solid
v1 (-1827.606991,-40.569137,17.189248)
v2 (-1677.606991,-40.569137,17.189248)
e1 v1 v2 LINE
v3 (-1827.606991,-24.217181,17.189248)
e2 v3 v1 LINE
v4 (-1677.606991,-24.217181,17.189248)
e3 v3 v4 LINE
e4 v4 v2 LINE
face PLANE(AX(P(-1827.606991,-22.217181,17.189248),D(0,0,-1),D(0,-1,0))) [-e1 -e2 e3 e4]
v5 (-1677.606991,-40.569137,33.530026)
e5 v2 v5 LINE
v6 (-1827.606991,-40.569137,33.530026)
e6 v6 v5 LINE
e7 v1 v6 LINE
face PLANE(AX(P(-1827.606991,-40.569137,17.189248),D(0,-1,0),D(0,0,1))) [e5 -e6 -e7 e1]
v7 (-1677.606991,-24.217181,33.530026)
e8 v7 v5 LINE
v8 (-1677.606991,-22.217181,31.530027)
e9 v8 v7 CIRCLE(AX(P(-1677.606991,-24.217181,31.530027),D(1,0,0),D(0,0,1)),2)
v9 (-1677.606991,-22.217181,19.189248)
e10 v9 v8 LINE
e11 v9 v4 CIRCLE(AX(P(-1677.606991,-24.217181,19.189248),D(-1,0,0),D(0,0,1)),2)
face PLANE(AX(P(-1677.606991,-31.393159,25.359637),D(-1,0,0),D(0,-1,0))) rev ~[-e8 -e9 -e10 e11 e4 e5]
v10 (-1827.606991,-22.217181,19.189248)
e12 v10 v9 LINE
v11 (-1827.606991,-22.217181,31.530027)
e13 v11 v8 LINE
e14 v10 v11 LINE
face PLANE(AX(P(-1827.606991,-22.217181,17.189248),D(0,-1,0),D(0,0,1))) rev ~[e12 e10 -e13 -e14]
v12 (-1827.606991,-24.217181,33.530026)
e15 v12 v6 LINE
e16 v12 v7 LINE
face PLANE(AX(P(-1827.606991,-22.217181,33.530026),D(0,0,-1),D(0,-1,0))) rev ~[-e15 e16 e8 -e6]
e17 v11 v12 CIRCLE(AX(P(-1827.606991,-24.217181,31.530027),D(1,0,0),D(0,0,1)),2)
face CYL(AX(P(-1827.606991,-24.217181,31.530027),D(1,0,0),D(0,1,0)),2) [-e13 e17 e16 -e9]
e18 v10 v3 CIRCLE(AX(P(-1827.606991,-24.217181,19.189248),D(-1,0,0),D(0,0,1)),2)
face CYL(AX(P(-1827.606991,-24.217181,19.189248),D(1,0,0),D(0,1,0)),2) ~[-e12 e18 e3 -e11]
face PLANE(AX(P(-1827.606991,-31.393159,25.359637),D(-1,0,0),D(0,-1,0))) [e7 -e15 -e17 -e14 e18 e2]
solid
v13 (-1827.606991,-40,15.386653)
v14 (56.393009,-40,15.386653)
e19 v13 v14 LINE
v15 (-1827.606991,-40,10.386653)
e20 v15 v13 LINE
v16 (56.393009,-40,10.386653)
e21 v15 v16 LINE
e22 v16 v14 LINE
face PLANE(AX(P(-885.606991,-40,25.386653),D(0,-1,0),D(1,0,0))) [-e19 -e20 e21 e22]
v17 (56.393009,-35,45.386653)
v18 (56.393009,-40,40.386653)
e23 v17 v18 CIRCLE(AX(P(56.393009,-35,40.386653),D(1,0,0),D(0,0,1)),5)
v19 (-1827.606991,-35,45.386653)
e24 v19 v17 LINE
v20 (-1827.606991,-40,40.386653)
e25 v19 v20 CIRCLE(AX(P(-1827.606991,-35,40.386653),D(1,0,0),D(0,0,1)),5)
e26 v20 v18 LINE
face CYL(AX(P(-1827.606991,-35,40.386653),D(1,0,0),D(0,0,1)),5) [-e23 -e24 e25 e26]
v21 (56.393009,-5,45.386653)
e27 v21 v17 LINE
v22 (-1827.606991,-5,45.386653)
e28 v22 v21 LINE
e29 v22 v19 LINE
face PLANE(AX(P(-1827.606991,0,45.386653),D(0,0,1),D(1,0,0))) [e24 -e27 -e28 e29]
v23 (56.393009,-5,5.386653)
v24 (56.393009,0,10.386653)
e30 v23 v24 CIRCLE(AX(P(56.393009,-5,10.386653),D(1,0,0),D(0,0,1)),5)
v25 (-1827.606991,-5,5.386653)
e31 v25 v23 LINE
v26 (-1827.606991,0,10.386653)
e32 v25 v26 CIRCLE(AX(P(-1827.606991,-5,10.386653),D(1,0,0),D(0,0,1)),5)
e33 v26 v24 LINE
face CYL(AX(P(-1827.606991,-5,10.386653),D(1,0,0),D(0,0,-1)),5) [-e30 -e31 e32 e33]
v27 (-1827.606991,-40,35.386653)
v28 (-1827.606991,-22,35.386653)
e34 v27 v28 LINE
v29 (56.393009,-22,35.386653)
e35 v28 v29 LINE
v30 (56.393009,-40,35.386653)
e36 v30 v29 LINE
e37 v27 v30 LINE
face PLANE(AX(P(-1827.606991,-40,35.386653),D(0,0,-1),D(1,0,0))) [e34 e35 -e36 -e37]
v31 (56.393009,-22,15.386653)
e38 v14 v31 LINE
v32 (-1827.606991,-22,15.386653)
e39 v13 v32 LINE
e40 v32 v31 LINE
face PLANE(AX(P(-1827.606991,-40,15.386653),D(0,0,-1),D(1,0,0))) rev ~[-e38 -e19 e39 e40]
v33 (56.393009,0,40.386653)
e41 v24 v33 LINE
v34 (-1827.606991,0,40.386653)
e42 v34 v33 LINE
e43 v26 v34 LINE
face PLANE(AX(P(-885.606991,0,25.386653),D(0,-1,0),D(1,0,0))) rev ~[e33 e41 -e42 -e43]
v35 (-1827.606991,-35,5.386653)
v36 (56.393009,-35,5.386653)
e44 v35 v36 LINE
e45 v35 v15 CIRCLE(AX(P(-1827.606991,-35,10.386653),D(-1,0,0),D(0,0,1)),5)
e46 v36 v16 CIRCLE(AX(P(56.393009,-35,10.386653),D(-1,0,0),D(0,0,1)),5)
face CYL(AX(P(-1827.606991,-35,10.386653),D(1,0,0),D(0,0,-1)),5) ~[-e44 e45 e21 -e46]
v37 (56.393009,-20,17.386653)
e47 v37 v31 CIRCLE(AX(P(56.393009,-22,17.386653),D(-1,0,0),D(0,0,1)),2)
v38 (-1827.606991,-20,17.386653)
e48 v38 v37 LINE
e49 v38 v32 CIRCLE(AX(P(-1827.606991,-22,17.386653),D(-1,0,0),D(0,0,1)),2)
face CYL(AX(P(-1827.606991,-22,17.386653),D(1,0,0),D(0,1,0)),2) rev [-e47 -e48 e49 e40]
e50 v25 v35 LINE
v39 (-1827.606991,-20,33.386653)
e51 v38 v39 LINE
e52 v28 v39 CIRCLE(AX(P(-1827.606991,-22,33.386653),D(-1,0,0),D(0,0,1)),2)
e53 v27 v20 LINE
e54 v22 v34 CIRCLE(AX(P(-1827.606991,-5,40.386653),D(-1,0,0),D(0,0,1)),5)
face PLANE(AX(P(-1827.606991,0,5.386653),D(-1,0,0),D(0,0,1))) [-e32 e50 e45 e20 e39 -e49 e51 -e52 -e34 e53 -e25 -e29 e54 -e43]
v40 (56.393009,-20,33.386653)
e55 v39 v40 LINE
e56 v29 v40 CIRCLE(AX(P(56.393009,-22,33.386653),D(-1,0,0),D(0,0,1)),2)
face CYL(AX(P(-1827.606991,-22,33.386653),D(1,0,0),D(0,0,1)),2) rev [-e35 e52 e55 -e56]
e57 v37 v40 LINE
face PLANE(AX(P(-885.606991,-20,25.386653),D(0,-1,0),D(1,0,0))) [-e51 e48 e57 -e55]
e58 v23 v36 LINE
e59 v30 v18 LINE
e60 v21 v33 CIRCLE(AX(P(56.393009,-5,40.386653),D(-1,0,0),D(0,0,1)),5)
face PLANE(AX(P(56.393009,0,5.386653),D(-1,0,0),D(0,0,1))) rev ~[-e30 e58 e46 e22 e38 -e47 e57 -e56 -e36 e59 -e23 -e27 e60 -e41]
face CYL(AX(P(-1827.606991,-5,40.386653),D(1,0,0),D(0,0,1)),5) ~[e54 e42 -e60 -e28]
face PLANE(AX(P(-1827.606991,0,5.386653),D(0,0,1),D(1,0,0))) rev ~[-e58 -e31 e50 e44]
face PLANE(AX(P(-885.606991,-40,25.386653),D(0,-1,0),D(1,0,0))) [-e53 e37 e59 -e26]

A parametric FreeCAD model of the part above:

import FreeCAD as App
import Part
import Sketcher

V = App.Vector


def edges_at(feature, points):
    """Names of the edges that pass closest to the given points."""
    edges = feature.Shape.Edges
    near = lambda p: min(range(len(edges)), key=lambda i: edges[i].distToShape(Part.Vertex(*p))[0])
    return sorted({f"Edge{near(p) + 1}" for p in points})


def add_polygon(sketch, points):
    """Adds a closed chain of lines whose ends are joined by coincident constraints."""
    first, n = sketch.GeometryCount, len(points)
    for a, b in zip(points, points[1:] + points[:1]):
        sketch.addGeometry(Part.LineSegment(App.Vector(*a, 0), App.Vector(*b, 0)), False)
    for i in range(n):
        sketch.addConstraint(Sketcher.Constraint("Coincident", first + i, 2, first + (i + 1) % n, 1))

doc = App.newDocument("Part")
body = doc.addObject("PartDesign::Body", "Body")

sketch1 = doc.addObject("Sketcher::SketchObject", "Sketch")
body.addObject(sketch1)
sketch1.AttachmentSupport = (doc.XZ_Plane, [""])
sketch1.MapMode = "FlatFace"
add_polygon(sketch1, [(-1828, 45), (-1828, 5), (56, 5), (56, 45)])
sketch1.addConstraint(Sketcher.Constraint("Vertical", 0))
sketch1.addConstraint(Sketcher.Constraint("Horizontal", 1))
sketch1.addConstraint(Sketcher.Constraint("Vertical", 2))
sketch1.addConstraint(Sketcher.Constraint("Horizontal", 3))
sketch1.addConstraint(Sketcher.Constraint("DistanceX", 1, 1, 1, 2, 1884.0))
sketch1.addConstraint(Sketcher.Constraint("DistanceY", 0, 2, 0, 1, 40.0))
sketch1.addConstraint(Sketcher.Constraint("DistanceX", 0, 2, -1, 1, 1827.606991))
sketch1.addConstraint(Sketcher.Constraint("DistanceY", -1, 1, 0, 2, 5.386653))
pad1 = doc.addObject("PartDesign::Pad", "Pad")
body.addObject(pad1)
pad1.Profile = sketch1
pad1.Length = 40
doc.recompute()

fillet = doc.addObject("PartDesign::Fillet", "Fillet")
body.addObject(fillet)
fillet.Base = (pad1, edges_at(pad1, [
    (-885.607, -40, 45.387),
    (-885.607, 0, 45.387),
    (-885.607, -40, 5.387),
    (-885.607, 0, 5.387),
]))
fillet.Radius = 5

sketch2 = doc.addObject("Sketcher::SketchObject", "Sketch001")
body.addObject(sketch2)
sketch2.AttachmentSupport = (doc.XZ_Plane, [""])
sketch2.MapMode = "FlatFace"
sketch2.AttachmentOffset = App.Placement(V(0, 0, 40), App.Rotation())
add_polygon(sketch2, [(-1828, 35), (-1828, 15), (56, 15), (56, 35)])
sketch2.addConstraint(Sketcher.Constraint("Vertical", 0))
sketch2.addConstraint(Sketcher.Constraint("Horizontal", 1))
sketch2.addConstraint(Sketcher.Constraint("Vertical", 2))
sketch2.addConstraint(Sketcher.Constraint("Horizontal", 3))
sketch2.addConstraint(Sketcher.Constraint("DistanceX", 1, 1, 1, 2, 1884.0))
sketch2.addConstraint(Sketcher.Constraint("DistanceY", 0, 2, 0, 1, 20.0))
sketch2.addConstraint(Sketcher.Constraint("DistanceX", 0, 2, -1, 1, 1827.606991))
sketch2.addConstraint(Sketcher.Constraint("DistanceY", -1, 1, 0, 2, 15.386653))
pocket1 = doc.addObject("PartDesign::Pocket", "Pocket")
body.addObject(pocket1)
pocket1.Profile = sketch2
pocket1.Length = 20
doc.recompute()

fillet2 = doc.addObject("PartDesign::Fillet", "Fillet001")
body.addObject(fillet2)
fillet2.Base = (pocket1, edges_at(pocket1, [(-885.607, -20, 15.387), (-885.607, -20, 35.387)]))
fillet2.Radius = 2
body2 = doc.addObject("PartDesign::Body", "Body001")

sketch3 = doc.addObject("Sketcher::SketchObject", "Sketch002")
body2.addObject(sketch3)
sketch3.AttachmentSupport = (doc.getObject("YZ_Plane001"), [""])
sketch3.MapMode = "FlatFace"
sketch3.AttachmentOffset = App.Placement(V(0, 0, -1827.606991), App.Rotation())
add_polygon(sketch3, [(-22, 34), (-22, 17), (-41, 17), (-41, 34)])
sketch3.addConstraint(Sketcher.Constraint("Vertical", 0))
sketch3.addConstraint(Sketcher.Constraint("Horizontal", 1))
sketch3.addConstraint(Sketcher.Constraint("Vertical", 2))
sketch3.addConstraint(Sketcher.Constraint("Horizontal", 3))
sketch3.addConstraint(Sketcher.Constraint("DistanceY", 0, 2, 0, 1, 16.340779))
sketch3.addConstraint(Sketcher.Constraint("DistanceX", 1, 2, 1, 1, 18.351957))
sketch3.addConstraint(Sketcher.Constraint("DistanceX", 0, 2, -1, 1, 22.217181))
sketch3.addConstraint(Sketcher.Constraint("DistanceY", -1, 1, 0, 2, 17.189248))
pad2 = doc.addObject("PartDesign::Pad", "Pad001")
body2.addObject(pad2)
pad2.Profile = sketch3
pad2.Length = 150
doc.recompute()

fillet3 = doc.addObject("PartDesign::Fillet", "Fillet002")
body2.addObject(fillet3)
fillet3.Base = (pad2, edges_at(pad2, [(-1752.607, -22.217, 33.53), (-1752.607, -22.217, 17.189)]))
fillet3.Radius = 2

doc.recompute()
